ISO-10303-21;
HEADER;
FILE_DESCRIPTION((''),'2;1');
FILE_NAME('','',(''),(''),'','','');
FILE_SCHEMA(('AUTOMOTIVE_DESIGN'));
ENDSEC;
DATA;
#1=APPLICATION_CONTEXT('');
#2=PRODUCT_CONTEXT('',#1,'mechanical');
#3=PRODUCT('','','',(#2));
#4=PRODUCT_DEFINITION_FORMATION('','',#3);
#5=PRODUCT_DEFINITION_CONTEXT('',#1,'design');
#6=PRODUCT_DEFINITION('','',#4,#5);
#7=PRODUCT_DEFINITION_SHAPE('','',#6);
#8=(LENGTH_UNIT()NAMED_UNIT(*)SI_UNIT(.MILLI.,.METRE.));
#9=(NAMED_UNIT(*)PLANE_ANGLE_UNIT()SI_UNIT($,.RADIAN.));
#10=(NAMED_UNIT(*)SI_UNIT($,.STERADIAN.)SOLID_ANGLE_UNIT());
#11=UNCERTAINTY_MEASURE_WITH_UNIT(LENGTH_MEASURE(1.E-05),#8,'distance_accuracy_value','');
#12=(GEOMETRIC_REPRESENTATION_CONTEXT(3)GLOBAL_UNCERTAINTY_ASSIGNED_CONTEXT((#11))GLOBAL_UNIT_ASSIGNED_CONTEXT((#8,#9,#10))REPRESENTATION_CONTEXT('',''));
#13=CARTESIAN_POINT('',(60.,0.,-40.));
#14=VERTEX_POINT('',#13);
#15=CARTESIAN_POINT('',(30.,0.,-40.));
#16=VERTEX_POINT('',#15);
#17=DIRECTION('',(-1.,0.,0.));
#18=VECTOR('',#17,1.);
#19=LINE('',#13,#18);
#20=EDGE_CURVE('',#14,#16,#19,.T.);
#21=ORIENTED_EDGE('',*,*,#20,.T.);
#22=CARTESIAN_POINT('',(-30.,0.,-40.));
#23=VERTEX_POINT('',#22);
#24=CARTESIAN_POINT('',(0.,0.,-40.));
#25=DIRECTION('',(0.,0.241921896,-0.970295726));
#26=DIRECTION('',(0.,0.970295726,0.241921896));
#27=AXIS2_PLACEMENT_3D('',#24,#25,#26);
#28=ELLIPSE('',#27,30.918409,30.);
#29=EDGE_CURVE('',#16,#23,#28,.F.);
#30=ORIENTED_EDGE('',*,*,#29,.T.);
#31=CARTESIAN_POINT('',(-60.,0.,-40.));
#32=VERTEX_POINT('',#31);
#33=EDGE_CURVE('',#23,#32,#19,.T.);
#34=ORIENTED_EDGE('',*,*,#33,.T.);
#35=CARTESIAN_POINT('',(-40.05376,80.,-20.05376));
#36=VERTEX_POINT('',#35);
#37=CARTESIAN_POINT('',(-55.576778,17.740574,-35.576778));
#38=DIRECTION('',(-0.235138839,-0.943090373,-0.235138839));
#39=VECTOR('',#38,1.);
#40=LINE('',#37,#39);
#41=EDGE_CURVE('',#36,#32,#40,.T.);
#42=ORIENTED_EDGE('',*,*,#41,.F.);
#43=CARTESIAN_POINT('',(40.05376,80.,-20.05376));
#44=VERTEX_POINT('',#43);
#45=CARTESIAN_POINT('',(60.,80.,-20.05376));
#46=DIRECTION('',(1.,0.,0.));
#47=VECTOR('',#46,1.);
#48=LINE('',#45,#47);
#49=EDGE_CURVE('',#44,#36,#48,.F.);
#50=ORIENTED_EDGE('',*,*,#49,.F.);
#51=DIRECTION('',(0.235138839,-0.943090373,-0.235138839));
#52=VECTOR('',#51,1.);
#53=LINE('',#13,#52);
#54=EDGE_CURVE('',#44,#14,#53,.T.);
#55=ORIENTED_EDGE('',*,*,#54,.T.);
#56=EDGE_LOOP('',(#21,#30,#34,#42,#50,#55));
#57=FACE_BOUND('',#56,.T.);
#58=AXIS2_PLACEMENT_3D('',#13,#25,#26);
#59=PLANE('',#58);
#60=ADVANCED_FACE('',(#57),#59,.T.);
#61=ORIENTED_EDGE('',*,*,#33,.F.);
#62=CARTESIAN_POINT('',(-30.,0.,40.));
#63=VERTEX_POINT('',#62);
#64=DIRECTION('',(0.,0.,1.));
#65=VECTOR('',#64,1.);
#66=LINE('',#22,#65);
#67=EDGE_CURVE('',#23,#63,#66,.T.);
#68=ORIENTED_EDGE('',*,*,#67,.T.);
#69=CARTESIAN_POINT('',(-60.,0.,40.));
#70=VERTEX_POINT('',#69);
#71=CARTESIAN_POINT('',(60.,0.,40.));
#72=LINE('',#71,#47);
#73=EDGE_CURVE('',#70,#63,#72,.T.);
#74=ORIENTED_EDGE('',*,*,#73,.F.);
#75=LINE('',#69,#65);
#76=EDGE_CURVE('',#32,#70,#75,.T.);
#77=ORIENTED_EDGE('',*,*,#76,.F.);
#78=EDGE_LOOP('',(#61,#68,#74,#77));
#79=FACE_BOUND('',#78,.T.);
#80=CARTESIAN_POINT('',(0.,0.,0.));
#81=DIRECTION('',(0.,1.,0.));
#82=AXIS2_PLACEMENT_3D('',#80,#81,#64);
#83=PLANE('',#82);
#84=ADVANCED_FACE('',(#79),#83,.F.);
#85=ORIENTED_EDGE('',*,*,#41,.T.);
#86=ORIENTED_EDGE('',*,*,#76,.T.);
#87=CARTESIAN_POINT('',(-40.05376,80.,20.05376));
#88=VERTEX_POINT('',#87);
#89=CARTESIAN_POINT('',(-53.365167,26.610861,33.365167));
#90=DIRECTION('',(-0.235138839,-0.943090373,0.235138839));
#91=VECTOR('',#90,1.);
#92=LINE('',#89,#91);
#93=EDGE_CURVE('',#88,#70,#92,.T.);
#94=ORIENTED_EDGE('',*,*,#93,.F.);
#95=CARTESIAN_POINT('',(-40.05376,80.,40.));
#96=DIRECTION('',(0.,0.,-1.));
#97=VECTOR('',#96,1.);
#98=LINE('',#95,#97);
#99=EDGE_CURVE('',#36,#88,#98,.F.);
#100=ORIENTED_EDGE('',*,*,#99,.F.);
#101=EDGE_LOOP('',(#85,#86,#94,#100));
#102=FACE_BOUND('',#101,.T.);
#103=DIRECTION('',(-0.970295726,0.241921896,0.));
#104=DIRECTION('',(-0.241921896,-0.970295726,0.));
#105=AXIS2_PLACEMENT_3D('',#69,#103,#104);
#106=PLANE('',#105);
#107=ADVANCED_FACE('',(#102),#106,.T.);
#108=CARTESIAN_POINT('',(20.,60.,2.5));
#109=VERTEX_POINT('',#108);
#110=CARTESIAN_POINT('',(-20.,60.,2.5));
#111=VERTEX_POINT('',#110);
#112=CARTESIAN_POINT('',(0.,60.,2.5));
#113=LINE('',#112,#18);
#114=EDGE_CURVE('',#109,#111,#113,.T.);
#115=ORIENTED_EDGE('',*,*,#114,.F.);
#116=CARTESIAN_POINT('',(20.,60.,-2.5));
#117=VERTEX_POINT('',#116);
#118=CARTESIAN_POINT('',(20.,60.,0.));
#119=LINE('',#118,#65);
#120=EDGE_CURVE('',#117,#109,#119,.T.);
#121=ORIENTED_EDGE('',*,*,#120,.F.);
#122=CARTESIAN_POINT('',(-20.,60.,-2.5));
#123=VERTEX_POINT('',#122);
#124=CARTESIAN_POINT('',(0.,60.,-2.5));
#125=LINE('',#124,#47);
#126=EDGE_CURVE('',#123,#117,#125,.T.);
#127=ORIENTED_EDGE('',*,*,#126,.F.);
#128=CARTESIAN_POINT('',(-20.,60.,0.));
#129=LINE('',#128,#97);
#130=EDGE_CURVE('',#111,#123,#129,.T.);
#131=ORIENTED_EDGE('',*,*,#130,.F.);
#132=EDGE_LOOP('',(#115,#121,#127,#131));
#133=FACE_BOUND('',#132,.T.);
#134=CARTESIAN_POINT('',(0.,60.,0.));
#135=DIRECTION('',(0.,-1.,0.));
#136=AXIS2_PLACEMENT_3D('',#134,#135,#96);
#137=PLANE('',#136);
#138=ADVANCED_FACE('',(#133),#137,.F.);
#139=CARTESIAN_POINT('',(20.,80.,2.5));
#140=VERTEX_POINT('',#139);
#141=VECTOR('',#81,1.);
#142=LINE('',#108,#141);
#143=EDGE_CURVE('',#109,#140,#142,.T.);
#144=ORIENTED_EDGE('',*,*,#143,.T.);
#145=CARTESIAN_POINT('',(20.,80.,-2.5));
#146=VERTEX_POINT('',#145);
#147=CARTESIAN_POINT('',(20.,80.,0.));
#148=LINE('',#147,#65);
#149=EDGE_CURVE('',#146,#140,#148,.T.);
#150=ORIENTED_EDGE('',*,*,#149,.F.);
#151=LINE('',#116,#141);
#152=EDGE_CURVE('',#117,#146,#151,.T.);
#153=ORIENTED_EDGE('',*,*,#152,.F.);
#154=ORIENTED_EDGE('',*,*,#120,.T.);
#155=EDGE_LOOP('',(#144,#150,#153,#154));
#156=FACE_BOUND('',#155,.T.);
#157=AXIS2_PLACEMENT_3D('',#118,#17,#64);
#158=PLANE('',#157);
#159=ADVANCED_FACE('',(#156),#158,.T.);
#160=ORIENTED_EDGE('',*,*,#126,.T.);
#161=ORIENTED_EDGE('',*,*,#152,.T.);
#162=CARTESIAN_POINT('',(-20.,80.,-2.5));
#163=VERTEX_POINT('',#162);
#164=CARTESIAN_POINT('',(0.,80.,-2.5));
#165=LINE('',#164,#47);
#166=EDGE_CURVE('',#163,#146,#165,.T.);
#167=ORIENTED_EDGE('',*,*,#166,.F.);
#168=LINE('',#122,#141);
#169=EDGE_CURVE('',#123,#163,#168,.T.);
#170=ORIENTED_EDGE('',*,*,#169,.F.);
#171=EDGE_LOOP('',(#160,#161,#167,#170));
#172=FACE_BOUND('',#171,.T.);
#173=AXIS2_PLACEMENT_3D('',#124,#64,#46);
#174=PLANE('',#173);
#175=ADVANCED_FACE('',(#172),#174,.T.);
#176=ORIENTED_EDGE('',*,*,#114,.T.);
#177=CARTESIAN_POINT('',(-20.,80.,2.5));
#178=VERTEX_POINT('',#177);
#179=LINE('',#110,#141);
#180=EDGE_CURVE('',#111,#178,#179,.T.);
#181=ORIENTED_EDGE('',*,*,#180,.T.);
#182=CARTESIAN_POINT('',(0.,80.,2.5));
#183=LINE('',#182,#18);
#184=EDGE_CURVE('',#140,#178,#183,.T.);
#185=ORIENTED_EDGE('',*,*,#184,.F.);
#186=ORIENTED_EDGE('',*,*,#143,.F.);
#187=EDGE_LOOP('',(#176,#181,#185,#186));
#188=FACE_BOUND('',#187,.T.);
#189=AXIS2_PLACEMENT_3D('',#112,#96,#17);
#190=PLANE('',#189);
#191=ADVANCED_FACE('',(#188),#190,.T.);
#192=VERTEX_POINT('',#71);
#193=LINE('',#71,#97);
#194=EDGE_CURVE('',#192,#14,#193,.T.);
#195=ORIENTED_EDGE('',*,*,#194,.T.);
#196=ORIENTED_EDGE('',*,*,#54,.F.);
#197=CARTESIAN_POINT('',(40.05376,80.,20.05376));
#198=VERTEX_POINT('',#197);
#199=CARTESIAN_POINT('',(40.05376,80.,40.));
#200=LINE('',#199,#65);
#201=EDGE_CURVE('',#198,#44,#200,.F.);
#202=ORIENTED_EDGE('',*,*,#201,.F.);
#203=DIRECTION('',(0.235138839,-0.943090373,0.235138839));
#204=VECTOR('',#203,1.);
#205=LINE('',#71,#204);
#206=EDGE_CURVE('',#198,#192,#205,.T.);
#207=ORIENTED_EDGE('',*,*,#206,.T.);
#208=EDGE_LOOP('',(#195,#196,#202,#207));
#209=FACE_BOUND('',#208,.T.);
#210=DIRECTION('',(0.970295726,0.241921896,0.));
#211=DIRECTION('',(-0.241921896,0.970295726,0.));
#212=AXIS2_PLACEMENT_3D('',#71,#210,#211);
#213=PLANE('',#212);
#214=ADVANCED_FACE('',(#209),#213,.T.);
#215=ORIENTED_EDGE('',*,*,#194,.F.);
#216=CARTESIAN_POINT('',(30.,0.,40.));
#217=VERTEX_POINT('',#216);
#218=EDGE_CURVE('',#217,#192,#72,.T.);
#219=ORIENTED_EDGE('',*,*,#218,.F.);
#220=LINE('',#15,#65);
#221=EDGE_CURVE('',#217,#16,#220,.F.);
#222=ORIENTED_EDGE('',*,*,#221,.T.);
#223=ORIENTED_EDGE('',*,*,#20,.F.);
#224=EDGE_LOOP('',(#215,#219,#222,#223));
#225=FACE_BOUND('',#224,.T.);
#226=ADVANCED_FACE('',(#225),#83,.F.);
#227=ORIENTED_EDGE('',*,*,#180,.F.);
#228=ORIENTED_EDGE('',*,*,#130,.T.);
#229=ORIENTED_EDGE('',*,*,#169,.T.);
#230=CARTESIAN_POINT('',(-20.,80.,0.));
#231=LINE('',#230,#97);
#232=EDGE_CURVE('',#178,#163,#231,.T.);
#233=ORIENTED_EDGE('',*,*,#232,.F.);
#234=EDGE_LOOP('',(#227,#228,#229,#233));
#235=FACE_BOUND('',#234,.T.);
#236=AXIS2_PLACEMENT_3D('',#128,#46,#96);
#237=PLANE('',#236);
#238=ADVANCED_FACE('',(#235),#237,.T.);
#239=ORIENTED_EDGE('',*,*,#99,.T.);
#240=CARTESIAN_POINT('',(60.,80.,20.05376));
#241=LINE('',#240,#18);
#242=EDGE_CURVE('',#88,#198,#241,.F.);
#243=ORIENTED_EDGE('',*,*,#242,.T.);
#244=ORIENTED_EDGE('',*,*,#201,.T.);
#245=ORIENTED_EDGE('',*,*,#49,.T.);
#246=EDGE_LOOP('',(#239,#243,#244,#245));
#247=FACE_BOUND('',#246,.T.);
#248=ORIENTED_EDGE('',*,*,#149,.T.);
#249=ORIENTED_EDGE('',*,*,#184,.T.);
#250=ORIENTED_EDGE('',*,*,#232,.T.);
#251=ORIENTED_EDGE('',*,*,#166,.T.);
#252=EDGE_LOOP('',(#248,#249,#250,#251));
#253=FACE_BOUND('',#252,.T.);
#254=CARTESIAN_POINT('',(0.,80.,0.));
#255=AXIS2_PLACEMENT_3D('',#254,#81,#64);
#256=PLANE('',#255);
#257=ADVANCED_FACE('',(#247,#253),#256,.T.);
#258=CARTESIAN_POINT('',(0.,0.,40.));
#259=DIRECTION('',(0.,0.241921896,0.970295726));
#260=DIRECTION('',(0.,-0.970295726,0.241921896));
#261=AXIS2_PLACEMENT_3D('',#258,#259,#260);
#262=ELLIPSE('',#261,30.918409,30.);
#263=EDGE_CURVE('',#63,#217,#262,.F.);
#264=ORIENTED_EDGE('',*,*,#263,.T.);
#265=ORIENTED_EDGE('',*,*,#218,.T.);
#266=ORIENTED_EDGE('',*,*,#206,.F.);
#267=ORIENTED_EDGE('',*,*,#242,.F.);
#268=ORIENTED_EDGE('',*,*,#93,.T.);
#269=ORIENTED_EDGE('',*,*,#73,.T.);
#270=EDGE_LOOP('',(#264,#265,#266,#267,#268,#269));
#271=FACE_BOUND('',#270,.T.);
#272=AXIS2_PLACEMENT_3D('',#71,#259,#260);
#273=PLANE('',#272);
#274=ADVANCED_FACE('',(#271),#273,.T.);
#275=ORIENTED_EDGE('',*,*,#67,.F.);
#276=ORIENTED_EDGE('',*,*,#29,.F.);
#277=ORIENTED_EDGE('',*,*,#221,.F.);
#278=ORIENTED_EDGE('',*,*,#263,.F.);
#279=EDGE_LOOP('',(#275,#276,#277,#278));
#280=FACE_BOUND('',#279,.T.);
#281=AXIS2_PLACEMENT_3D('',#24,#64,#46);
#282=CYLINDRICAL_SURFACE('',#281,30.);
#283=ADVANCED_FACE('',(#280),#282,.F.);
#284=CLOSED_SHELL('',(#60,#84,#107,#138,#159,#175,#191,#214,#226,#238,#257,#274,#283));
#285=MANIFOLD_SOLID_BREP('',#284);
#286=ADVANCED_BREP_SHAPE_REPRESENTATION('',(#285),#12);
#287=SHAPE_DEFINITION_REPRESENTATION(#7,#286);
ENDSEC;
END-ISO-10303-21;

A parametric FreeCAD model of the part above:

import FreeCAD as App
import Part
import Sketcher
from FreeCAD import Vector
Q = App.Units.Quantity


def add_polygon(sketch, points):
    """Adds a closed chain of lines whose ends are joined by coincident constraints."""
    first, n = sketch.GeometryCount, len(points)
    for a, b in zip(points, points[1:] + points[:1]):
        sketch.addGeometry(Part.LineSegment(App.Vector(*a, 0), App.Vector(*b, 0)), False)
    for i in range(n):
        sketch.addConstraint(Sketcher.Constraint("Coincident", first + i, 2, first + (i + 1) % n, 1))

doc = App.newDocument("Part")
params = doc.addObject("Spreadsheet::Sheet", "Params")
for row, (alias, value) in enumerate([
    ("sketch1_width", "120 mm"),
    ("sketch1_height", "80 mm"),
    ("pad1_length", "80 mm"),
    ("pad1_taper", "-14 deg"),
    ("sketch2_width", "40 mm"),
    ("sketch2_height", "5 mm"),
    ("pocket1_length", "20 mm"),
    ("sketch3_diameter", "60 mm"),
], start=1):
    params.set(f"A{row}", alias)
    params.set(f"B{row}", "=" + value)
    params.setAlias(f"B{row}", alias)

body = doc.addObject("PartDesign::Body", "Body")

# Sketch on XZ plane
sketch1 = body.newObject("Sketcher::SketchObject", "Sketch")
sketch1.AttachmentSupport = (doc.getObject("XZ_Plane"), [""])
sketch1.MapMode = "FlatFace"
add_polygon(sketch1, [(-60, -40), (-60, 40), (60, 40), (60, -40)])  # lines 0-3
sketch1.addConstraint(Sketcher.Constraint("Vertical", 0))
sketch1.addConstraint(Sketcher.Constraint("Horizontal", 1))
sketch1.addConstraint(Sketcher.Constraint("Vertical", 2))
sketch1.addConstraint(Sketcher.Constraint("Horizontal", 3))
sketch1.addConstraint(Sketcher.Constraint("Symmetric", 0, 2, 2, 2, -1, 1))
sketch1.addConstraint(Sketcher.Constraint("DistanceX", 1, 1, 1, 2, Q("120 mm")))
sketch1.addConstraint(Sketcher.Constraint("DistanceY", 0, 1, 0, 2, Q("80 mm")))
sketch1.setExpression("Constraints[9]", "Params.sketch1_width")
sketch1.setExpression("Constraints[10]", "Params.sketch1_height")
pad1 = body.newObject("PartDesign::Pad", "Pad")
pad1.Profile = sketch1
pad1.setExpression("Length", "Params.pad1_length")
pad1.Reversed = True
pad1.setExpression("TaperAngle", "Params.pad1_taper")

# Sketch on XZ plane
sketch2 = body.newObject("Sketcher::SketchObject", "Sketch001")
sketch2.AttachmentSupport = (doc.getObject("XZ_Plane"), [""])
sketch2.MapMode = "FlatFace"
sketch2.AttachmentOffset = App.Placement(Vector(0, 0, -80), App.Rotation())
add_polygon(sketch2, [(-20, -2.5), (-20, 2.5), (20, 2.5), (20, -2.5)])  # lines 0-3
sketch2.addConstraint(Sketcher.Constraint("Vertical", 0))
sketch2.addConstraint(Sketcher.Constraint("Horizontal", 1))
sketch2.addConstraint(Sketcher.Constraint("Vertical", 2))
sketch2.addConstraint(Sketcher.Constraint("Horizontal", 3))
sketch2.addConstraint(Sketcher.Constraint("Symmetric", 0, 2, 2, 2, -1, 1))
sketch2.addConstraint(Sketcher.Constraint("DistanceX", 1, 1, 1, 2, Q("40 mm")))
sketch2.addConstraint(Sketcher.Constraint("DistanceY", 0, 1, 0, 2, Q("5 mm")))
sketch2.setExpression("Constraints[9]", "Params.sketch2_width")
sketch2.setExpression("Constraints[10]", "Params.sketch2_height")
pocket1 = body.newObject("PartDesign::Pocket", "Pocket")
pocket1.Profile = sketch2
pocket1.setExpression("Length", "Params.pocket1_length")
pocket1.Reversed = True

# Sketch on XY plane
sketch3 = body.newObject("Sketcher::SketchObject", "Sketch002")
sketch3.AttachmentSupport = (doc.getObject("XY_Plane"), [""])
sketch3.MapMode = "FlatFace"
sketch3.addGeometry(Part.Circle(Vector(0, 0, 0), Vector(0, 0, 1), 30), False)
sketch3.addConstraint(Sketcher.Constraint("Coincident", 0, 3, -1, 1))
sketch3.addConstraint(Sketcher.Constraint("Diameter", 0, Q("60 mm")))
sketch3.setExpression("Constraints[1]", "Params.sketch3_diameter")
pocket2 = body.newObject("PartDesign::Pocket", "Pocket001")
pocket2.Profile = sketch3
pocket2.Type = "ThroughAll"
pocket2.Midplane = True

doc.recompute()
